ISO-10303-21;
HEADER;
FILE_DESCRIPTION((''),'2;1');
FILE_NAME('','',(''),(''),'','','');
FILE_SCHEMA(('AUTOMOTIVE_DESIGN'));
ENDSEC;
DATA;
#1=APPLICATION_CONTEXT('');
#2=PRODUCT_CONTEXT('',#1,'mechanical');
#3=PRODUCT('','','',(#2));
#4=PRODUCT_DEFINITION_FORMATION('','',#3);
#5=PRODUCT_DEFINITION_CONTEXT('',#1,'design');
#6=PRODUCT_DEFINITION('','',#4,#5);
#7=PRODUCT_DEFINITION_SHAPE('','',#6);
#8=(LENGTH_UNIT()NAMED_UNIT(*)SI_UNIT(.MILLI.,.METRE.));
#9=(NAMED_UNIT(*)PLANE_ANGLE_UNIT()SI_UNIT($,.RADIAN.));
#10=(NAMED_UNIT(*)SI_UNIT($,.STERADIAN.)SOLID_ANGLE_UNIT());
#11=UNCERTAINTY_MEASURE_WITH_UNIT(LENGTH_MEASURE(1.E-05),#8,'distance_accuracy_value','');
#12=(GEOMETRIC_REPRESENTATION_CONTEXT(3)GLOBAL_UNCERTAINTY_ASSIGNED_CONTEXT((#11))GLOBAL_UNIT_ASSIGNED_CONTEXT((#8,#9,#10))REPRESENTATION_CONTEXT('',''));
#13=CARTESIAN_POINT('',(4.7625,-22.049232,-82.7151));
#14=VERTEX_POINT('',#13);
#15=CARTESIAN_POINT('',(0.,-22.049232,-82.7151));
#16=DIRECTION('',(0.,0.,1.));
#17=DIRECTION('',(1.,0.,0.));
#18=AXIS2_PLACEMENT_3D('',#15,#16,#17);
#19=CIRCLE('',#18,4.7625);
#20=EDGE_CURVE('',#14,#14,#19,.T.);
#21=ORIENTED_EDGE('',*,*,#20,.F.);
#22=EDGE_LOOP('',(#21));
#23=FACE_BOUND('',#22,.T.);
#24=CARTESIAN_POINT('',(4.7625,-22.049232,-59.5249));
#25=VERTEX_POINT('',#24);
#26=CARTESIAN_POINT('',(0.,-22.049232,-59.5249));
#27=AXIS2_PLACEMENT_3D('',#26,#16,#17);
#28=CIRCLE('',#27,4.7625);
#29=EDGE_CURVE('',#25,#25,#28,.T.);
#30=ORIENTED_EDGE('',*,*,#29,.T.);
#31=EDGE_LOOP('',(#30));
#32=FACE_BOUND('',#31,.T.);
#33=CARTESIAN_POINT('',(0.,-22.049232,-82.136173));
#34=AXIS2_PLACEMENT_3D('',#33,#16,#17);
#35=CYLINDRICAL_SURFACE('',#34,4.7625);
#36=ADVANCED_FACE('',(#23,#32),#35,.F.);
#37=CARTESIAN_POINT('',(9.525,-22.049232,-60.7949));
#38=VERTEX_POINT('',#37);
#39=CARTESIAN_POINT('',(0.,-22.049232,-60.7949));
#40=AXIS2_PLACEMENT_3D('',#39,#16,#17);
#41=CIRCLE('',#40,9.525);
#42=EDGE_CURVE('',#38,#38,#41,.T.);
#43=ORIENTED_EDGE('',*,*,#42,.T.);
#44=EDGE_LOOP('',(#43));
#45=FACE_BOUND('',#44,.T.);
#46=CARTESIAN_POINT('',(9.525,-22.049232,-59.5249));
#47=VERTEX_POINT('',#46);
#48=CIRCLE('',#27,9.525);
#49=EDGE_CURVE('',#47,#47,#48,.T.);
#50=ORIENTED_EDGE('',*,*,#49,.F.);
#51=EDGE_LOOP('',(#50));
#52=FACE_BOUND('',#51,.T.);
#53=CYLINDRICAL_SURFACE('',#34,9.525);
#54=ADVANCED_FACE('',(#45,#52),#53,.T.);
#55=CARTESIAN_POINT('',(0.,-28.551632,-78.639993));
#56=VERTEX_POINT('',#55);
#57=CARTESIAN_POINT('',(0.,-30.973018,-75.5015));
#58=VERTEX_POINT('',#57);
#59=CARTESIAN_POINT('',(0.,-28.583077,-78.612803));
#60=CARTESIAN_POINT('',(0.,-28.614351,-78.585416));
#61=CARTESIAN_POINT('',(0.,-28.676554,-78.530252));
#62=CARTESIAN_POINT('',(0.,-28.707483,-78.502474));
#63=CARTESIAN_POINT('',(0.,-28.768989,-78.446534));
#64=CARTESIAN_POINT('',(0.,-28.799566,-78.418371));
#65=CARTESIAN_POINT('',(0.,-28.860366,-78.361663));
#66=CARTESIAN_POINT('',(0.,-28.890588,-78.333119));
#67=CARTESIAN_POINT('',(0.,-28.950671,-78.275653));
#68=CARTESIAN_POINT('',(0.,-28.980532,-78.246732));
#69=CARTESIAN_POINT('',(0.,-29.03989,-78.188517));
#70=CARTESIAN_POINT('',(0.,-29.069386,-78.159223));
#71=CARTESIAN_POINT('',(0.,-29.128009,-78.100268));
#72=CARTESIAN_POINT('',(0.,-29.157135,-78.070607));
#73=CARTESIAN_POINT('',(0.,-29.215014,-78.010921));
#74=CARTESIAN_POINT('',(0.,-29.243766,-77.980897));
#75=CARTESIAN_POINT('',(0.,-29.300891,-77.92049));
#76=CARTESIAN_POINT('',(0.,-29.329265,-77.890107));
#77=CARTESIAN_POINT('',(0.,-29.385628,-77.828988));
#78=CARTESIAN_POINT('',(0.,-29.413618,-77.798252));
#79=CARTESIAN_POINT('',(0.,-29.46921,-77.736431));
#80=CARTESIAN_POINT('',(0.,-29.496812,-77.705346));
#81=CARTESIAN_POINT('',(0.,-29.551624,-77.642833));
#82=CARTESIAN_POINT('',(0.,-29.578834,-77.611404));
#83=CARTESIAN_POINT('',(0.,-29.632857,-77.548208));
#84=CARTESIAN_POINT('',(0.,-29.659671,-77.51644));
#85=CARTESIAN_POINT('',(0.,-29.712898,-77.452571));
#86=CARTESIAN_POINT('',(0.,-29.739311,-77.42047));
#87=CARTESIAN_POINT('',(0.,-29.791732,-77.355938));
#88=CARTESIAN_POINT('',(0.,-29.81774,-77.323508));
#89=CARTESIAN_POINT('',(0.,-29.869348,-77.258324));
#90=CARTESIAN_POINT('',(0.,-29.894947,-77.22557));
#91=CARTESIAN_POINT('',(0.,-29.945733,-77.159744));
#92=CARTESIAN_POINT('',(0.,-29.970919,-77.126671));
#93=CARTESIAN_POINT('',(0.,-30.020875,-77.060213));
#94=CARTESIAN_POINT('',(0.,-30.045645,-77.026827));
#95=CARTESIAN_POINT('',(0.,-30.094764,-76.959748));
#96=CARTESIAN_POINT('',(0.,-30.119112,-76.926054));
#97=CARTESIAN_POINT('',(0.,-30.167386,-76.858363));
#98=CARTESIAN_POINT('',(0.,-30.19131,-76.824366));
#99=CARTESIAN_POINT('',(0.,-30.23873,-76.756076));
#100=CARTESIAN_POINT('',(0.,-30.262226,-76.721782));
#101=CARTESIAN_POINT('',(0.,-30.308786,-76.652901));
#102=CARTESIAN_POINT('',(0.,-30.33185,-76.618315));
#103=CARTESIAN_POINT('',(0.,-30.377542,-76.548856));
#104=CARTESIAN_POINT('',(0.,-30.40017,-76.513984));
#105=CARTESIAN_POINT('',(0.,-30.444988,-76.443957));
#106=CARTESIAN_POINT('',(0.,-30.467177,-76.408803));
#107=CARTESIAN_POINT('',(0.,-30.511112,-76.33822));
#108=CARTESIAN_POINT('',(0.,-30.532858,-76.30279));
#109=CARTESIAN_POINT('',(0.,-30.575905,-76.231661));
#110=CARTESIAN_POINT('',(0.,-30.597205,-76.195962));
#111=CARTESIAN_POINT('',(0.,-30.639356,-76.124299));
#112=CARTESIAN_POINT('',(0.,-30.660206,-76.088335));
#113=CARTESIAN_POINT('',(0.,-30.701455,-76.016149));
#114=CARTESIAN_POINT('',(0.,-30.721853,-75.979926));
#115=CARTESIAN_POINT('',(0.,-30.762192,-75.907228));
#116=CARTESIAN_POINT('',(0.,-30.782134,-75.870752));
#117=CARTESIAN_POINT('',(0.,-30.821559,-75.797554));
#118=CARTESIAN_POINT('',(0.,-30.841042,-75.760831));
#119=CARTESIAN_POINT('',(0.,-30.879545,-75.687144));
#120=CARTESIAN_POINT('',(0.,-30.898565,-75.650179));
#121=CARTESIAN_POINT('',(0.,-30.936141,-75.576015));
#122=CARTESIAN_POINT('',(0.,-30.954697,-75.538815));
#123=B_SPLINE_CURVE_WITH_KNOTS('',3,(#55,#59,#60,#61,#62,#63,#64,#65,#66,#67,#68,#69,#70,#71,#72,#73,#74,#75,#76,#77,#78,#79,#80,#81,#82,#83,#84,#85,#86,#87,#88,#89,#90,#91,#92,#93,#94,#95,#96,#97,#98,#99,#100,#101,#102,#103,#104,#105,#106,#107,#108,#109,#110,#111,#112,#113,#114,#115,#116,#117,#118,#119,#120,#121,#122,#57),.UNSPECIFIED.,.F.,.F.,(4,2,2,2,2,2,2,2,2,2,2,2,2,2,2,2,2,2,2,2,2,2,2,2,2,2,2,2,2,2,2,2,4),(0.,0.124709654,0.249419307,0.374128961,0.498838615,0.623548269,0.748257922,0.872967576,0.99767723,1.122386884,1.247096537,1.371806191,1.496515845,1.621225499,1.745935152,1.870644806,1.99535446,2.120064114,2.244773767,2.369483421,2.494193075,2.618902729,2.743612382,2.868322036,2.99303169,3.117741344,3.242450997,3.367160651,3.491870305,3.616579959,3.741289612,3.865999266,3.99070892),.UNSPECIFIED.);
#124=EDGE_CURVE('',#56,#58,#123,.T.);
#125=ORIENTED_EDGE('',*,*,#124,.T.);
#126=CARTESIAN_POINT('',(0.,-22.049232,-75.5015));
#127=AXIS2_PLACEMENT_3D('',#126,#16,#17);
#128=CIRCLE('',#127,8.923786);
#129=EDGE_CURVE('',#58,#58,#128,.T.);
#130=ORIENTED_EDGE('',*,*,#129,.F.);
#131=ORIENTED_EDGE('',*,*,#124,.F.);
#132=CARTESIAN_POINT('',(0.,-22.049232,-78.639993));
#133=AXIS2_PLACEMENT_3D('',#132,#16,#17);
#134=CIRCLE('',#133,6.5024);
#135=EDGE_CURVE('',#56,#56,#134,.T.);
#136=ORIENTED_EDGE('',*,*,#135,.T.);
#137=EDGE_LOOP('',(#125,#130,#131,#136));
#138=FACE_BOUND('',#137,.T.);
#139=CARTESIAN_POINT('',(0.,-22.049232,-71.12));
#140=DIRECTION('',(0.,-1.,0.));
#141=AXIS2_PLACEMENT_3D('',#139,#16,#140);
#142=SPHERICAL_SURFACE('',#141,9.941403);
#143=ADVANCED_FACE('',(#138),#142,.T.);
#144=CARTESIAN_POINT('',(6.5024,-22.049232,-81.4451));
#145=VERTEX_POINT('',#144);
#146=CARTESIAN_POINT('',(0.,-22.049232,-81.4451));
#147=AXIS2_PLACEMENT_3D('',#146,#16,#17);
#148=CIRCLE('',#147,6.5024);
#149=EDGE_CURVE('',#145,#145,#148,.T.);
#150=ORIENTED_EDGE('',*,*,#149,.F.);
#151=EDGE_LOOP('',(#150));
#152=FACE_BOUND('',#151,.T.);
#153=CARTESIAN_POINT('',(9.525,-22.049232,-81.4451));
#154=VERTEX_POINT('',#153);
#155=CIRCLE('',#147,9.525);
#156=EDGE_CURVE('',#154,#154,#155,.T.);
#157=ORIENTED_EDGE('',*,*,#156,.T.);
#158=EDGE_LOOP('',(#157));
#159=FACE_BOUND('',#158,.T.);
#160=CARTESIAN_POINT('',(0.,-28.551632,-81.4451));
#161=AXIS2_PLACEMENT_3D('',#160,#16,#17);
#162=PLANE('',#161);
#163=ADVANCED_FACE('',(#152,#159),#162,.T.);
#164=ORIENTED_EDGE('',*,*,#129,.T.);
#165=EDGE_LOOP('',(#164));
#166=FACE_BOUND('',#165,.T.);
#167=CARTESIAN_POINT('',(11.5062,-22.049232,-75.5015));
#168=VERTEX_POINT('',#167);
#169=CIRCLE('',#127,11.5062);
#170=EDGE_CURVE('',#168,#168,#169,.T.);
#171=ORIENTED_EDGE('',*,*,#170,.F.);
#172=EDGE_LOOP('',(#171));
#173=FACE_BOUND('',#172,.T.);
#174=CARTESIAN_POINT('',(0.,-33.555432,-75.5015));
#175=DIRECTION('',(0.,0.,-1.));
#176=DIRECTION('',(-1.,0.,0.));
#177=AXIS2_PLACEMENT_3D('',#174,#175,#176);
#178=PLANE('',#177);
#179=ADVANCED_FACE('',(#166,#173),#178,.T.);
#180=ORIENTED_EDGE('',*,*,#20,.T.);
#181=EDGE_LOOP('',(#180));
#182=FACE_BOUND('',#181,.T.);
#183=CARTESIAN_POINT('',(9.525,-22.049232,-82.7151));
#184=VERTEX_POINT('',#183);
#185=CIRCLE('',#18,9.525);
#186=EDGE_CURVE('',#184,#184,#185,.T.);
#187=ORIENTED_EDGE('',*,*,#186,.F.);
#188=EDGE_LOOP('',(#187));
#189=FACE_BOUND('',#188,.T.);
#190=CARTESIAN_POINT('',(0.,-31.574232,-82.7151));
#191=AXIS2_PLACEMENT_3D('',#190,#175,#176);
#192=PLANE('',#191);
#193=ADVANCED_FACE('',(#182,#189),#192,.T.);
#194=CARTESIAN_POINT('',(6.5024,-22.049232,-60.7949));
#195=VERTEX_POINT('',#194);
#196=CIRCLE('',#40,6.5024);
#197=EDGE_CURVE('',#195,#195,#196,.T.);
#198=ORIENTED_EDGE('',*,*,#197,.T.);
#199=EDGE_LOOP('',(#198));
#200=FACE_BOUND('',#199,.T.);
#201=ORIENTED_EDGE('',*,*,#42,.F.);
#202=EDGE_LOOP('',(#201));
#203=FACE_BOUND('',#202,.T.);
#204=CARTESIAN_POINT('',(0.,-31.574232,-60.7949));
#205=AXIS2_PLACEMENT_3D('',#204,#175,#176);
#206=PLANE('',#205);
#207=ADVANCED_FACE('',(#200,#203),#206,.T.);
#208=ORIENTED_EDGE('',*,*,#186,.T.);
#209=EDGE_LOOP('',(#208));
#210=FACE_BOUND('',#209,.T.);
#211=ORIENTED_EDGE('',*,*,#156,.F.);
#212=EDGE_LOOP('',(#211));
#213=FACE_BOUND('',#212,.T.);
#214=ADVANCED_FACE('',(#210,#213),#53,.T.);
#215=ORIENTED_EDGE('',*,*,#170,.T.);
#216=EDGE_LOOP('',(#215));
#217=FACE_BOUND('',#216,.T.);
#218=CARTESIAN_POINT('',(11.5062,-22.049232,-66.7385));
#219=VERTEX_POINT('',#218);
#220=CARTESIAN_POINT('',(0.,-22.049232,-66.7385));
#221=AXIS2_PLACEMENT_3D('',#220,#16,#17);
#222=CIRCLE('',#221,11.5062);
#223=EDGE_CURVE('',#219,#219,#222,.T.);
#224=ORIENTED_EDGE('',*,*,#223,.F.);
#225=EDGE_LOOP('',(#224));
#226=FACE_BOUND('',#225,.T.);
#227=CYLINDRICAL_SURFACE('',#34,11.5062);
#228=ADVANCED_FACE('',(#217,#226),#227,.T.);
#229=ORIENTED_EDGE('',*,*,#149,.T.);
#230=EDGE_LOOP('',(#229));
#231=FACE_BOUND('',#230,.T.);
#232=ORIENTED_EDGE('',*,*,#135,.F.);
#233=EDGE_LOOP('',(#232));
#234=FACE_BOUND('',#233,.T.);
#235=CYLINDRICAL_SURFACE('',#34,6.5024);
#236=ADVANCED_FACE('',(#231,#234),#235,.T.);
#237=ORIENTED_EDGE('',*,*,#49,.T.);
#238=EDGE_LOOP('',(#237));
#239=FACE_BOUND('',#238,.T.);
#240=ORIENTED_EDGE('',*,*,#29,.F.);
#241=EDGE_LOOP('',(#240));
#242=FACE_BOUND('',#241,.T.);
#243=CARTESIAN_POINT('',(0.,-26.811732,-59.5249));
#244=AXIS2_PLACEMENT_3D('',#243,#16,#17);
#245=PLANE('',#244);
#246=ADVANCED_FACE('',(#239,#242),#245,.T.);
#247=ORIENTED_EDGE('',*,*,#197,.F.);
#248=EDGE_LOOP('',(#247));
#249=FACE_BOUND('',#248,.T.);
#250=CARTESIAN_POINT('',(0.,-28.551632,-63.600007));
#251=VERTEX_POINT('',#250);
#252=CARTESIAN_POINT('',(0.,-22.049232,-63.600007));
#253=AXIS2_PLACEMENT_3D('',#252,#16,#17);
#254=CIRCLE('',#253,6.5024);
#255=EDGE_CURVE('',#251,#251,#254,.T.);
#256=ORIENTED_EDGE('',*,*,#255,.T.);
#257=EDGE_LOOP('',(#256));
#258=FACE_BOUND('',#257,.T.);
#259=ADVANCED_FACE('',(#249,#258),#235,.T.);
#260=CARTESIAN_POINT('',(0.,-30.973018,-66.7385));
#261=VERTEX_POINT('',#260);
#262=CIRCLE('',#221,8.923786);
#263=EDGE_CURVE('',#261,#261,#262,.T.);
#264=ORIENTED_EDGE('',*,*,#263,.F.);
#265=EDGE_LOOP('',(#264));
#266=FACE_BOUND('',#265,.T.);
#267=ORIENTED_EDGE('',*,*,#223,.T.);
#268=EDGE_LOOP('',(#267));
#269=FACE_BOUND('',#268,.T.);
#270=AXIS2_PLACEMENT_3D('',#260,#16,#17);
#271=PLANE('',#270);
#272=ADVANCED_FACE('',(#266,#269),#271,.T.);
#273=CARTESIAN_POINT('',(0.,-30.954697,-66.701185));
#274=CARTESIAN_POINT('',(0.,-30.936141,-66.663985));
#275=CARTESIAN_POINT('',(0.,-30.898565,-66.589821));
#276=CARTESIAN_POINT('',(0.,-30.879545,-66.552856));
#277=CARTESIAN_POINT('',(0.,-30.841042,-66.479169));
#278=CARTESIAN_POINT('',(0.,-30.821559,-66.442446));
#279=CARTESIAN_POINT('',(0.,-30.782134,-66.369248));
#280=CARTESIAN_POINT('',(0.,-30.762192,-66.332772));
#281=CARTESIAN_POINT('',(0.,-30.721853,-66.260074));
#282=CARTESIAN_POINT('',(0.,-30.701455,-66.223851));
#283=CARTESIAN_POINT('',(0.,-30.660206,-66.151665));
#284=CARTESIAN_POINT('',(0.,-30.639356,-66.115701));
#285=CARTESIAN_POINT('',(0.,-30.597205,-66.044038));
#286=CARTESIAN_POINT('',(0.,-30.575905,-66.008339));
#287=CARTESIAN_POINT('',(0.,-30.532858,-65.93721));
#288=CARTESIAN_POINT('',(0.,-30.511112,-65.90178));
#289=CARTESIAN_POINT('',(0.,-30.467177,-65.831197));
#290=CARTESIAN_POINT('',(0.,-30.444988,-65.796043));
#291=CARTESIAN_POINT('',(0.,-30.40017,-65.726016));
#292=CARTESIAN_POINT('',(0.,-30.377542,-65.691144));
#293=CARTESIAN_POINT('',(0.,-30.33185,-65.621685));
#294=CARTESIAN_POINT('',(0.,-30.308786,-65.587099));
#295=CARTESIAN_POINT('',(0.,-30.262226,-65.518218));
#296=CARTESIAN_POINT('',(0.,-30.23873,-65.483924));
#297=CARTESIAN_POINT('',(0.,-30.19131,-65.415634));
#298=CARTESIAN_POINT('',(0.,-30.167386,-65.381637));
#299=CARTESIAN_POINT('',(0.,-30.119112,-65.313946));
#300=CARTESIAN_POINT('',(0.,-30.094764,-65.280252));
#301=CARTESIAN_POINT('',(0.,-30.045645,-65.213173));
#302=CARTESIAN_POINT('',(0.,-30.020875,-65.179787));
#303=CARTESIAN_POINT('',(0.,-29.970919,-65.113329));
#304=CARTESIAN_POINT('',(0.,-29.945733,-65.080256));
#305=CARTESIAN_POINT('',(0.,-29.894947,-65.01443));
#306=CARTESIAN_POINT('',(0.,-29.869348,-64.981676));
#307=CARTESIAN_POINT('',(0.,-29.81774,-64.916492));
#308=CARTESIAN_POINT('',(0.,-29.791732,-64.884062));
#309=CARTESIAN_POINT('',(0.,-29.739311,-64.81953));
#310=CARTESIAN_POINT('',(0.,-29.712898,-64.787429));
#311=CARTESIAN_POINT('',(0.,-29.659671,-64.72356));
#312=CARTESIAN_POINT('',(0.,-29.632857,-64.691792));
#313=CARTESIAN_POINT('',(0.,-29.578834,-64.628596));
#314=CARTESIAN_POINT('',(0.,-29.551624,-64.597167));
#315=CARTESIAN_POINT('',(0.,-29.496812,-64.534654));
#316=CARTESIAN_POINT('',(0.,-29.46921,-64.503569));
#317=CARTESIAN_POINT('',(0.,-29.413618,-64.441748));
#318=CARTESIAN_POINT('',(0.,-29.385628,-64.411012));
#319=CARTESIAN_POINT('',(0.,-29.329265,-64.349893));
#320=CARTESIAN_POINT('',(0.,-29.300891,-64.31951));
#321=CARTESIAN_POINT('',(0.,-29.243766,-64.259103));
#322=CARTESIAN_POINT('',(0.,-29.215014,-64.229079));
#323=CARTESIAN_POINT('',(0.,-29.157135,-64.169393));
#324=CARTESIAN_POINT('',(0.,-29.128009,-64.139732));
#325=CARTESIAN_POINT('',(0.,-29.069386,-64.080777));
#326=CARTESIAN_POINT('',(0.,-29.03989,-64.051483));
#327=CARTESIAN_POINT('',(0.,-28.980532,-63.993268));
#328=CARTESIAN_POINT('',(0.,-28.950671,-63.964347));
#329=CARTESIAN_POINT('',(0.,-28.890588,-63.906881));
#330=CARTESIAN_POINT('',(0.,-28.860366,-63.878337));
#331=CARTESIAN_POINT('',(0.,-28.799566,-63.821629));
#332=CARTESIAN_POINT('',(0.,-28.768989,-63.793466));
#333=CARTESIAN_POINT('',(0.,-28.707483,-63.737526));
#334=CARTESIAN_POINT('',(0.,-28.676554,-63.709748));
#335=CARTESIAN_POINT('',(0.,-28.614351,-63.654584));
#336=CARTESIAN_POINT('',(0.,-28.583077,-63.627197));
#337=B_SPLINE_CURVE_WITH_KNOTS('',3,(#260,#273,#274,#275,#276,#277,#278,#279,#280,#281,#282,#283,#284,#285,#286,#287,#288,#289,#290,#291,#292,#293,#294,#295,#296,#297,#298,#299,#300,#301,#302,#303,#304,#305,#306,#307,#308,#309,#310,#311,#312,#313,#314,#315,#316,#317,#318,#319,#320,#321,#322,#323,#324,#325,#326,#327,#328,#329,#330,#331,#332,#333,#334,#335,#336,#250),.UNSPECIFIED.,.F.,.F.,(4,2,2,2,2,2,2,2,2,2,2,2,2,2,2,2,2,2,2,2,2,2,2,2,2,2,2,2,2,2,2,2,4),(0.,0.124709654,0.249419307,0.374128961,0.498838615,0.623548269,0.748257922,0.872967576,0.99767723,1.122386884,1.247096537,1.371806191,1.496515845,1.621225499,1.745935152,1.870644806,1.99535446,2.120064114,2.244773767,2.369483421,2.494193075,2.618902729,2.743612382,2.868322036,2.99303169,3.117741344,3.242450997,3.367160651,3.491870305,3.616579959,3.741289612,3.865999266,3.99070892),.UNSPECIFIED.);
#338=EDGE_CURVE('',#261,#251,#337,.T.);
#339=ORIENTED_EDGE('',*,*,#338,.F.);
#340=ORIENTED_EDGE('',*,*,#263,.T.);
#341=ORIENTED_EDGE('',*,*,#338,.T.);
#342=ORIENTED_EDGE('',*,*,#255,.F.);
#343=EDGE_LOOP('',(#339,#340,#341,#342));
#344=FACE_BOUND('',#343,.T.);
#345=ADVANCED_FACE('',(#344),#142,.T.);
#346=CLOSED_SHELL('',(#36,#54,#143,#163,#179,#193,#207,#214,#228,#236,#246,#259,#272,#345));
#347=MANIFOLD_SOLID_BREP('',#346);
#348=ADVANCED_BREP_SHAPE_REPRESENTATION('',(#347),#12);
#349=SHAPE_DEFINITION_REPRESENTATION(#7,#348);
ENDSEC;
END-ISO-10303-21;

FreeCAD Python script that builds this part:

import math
import FreeCAD as App
import Part
import Sketcher
from FreeCAD import Vector
Q = App.Units.Quantity

doc = App.newDocument("Part")
params = doc.addObject("Spreadsheet::Sheet", "Params")
for row, (alias, value) in enumerate([
    ("sketch1_height", "0.05 in"),
    ("sketch1_width", "0.1875 in"),
    ("sketch1_width2", "0.119 in"),
    ("sketch1_height2", "0.913 in"),
    ("sketch1_height3", "0.345 in"),
    ("revolution_angle", "360 deg"),
], start=1):
    params.set(f"A{row}", alias)
    params.set(f"B{row}", "=" + value)
    params.setAlias(f"B{row}", alias)

body = doc.addObject("PartDesign::Body", "Body")

# Sketch on YZ plane
sketch1 = body.newObject("Sketcher::SketchObject", "Sketch")
sketch1.AttachmentSupport = (doc.getObject("YZ_Plane"), [""])
sketch1.MapMode = "FlatFace"
sketch1.addGeometry([
    Part.LineSegment(Vector(-31.6, -82.7, 0), Vector(-26.8, -82.7, 0)),  # 0
    Part.LineSegment(Vector(-26.8, -82.7, 0), Vector(-26.8, -59.5, 0)),  # 1
    Part.LineSegment(Vector(-26.8, -59.5, 0), Vector(-31.6, -59.5, 0)),  # 2
    Part.LineSegment(Vector(-31.6, -59.5, 0), Vector(-31.6, -60.8, 0)),  # 3
    Part.LineSegment(Vector(-31.6, -60.8, 0), Vector(-28.6, -60.8, 0)),  # 4
    Part.LineSegment(Vector(-28.6, -60.8, 0), Vector(-28.6, -63.6, 0)),  # 5
    Part.ArcOfCircle(Part.Circle(Vector(-22, -71.1, 0), Vector(0, 0, 1), 9.9), math.radians(131), math.radians(154)),  # 6
    Part.LineSegment(Vector(-31, -66.7, 0), Vector(-33.6, -66.7, 0)),  # 7
    Part.LineSegment(Vector(-33.6, -66.7, 0), Vector(-33.6, -75.5, 0)),  # 8
    Part.LineSegment(Vector(-33.6, -75.5, 0), Vector(-31, -75.5, 0)),  # 9
    Part.ArcOfCircle(Part.Circle(Vector(-22, -71.1, 0), Vector(0, 0, 1), 9.9), math.radians(-154), math.radians(-131)),  # 10
    Part.LineSegment(Vector(-28.6, -78.6, 0), Vector(-28.6, -81.4, 0)),  # 11
    Part.LineSegment(Vector(-28.6, -81.4, 0), Vector(-31.6, -81.4, 0)),  # 12
    Part.LineSegment(Vector(-31.6, -81.4, 0), Vector(-31.6, -82.7, 0)),  # 13
], False)
sketch1.addGeometry(Part.LineSegment(Vector(-22, -59.5, 0), Vector(-22, -82.7, 0)), True)  # axis
sketch1.addConstraint([
    Sketcher.Constraint("Coincident", 0, 2, 1, 1),
    Sketcher.Constraint("Coincident", 1, 2, 2, 1),
    Sketcher.Constraint("Coincident", 2, 2, 3, 1),
    Sketcher.Constraint("Coincident", 3, 2, 4, 1),
    Sketcher.Constraint("Coincident", 4, 2, 5, 1),
    Sketcher.Constraint("Coincident", 5, 2, 6, 1),
    Sketcher.Constraint("Coincident", 6, 2, 7, 1),
    Sketcher.Constraint("Coincident", 7, 2, 8, 1),
    Sketcher.Constraint("Coincident", 8, 2, 9, 1),
    Sketcher.Constraint("Coincident", 9, 2, 10, 1),
    Sketcher.Constraint("Coincident", 10, 2, 11, 1),
    Sketcher.Constraint("Coincident", 11, 2, 12, 1),
    Sketcher.Constraint("Coincident", 12, 2, 13, 1),
    Sketcher.Constraint("Coincident", 13, 2, 0, 1),
    Sketcher.Constraint("Horizontal", 0),
    Sketcher.Constraint("Vertical", 1),
    Sketcher.Constraint("Horizontal", 2),
    Sketcher.Constraint("Vertical", 3),
    Sketcher.Constraint("Horizontal", 4),
    Sketcher.Constraint("Vertical", 5),
    Sketcher.Constraint("Horizontal", 7),
    Sketcher.Constraint("Vertical", 8),
    Sketcher.Constraint("Horizontal", 9),
    Sketcher.Constraint("Vertical", 11),
    Sketcher.Constraint("Horizontal", 12),
    Sketcher.Constraint("Vertical", 13),
    Sketcher.Constraint("Vertical", 14),
    Sketcher.Constraint("Coincident", 10, 3, 6, 3),
    Sketcher.Constraint("Equal", 6, 10),
    Sketcher.Constraint("Horizontal", 2, 2, 14, 1),
    Sketcher.Constraint("Horizontal", 13, 2, 14, 2),
    Sketcher.Constraint("Vertical", 6, 2, 9, 2),
    Sketcher.Constraint("Vertical", 5, 2, 10, 2),
    Sketcher.Constraint("Vertical", 3, 2, 12, 2),
    Sketcher.Constraint("Vertical", 10, 3, 14, 1),
    Sketcher.Constraint("Equal", 5, 11),
    Sketcher.Constraint("Equal", 3, 13),
    Sketcher.Constraint("DistanceY", 3, 2, 3, 1, Q("0.05 in")),
    Sketcher.Constraint("DistanceY", 6, 3, -1, 1, Q("2.8 in")),
    Sketcher.Constraint("DistanceX", 0, 1, 0, 2, Q("0.1875 in")),
    Sketcher.Constraint("DistanceX", 4, 1, 4, 2, Q("0.119 in")),
    Sketcher.Constraint("DistanceY", 1, 1, 1, 2, Q("0.913 in")),
    Sketcher.Constraint("DistanceY", 8, 2, 8, 1, Q("0.345 in")),
    Sketcher.Constraint("DistanceX", 0, 2, 6, 3, Q("0.1875 in")),
    Sketcher.Constraint("DistanceX", 7, 2, 5, 2, Q("0.197 in")),
    Sketcher.Constraint("Radius", 6, Q("9.941403 mm")),
    Sketcher.Constraint("DistanceX", 6, 3, -1, 1, Q("22.049232 mm")),
])
sketch1.setExpression("Constraints[37]", "Params.sketch1_height")
sketch1.setExpression("Constraints[39]", "Params.sketch1_width")
sketch1.setExpression("Constraints[40]", "Params.sketch1_width2")
sketch1.setExpression("Constraints[41]", "Params.sketch1_height2")
sketch1.setExpression("Constraints[42]", "Params.sketch1_height3")
revolution = body.newObject("PartDesign::Revolution", "Revolution")
revolution.Profile = sketch1
revolution.ReferenceAxis = (sketch1, ["Axis0"])
revolution.setExpression("Angle", "Params.revolution_angle")

doc.recompute()
